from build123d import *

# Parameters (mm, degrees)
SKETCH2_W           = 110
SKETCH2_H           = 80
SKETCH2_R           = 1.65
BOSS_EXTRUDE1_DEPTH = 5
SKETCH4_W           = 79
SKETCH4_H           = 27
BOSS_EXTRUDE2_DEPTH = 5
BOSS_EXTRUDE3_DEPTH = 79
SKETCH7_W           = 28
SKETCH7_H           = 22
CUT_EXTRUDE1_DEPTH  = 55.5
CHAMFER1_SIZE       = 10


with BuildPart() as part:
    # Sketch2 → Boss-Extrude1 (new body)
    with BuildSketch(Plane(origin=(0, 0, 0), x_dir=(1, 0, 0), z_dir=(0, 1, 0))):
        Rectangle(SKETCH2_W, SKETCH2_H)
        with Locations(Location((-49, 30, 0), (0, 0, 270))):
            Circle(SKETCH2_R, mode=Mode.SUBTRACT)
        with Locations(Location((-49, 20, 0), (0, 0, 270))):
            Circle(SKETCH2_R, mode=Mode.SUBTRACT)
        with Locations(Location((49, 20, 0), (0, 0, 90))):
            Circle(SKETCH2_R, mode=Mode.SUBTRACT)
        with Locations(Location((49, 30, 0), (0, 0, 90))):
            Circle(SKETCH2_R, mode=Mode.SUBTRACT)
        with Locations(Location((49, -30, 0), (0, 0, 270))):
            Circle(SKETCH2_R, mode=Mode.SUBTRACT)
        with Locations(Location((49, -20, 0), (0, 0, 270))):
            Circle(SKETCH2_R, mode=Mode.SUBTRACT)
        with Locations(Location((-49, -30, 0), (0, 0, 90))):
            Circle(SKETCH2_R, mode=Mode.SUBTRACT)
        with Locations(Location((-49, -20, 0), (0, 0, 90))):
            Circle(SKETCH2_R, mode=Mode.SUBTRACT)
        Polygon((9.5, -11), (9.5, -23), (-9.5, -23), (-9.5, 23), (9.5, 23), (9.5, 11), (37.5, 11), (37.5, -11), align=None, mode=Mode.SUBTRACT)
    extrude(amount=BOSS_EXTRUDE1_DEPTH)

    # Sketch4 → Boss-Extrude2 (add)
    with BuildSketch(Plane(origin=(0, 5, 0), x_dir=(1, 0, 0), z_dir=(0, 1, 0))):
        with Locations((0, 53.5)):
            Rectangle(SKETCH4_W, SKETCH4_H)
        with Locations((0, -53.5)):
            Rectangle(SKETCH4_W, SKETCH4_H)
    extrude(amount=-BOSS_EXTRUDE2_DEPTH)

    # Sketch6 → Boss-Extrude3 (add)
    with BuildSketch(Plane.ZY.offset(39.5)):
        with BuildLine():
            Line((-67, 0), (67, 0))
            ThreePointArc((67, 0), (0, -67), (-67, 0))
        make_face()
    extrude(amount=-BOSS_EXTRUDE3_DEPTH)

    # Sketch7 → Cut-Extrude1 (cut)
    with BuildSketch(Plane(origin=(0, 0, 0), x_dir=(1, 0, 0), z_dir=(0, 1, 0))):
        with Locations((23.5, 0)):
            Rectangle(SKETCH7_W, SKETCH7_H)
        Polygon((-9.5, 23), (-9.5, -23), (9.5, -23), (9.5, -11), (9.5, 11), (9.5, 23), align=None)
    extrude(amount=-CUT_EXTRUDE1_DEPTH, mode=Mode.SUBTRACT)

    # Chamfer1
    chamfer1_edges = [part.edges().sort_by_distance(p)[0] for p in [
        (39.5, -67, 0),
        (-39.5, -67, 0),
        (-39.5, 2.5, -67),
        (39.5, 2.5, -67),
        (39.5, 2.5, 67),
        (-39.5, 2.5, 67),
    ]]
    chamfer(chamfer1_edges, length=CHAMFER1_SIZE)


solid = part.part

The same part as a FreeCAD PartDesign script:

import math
import FreeCAD as App
import Part
import Sketcher

V = App.Vector


def edges_at(feature, points):
    """Names of the edges that pass closest to the given points."""
    edges = feature.Shape.Edges
    near = lambda p: min(range(len(edges)), key=lambda i: edges[i].distToShape(Part.Vertex(*p))[0])
    return sorted({f"Edge{near(p) + 1}" for p in points})


def add_polygon(sketch, points):
    """Adds a closed chain of lines whose ends are joined by coincident constraints."""
    first, n = sketch.GeometryCount, len(points)
    for a, b in zip(points, points[1:] + points[:1]):
        sketch.addGeometry(Part.LineSegment(App.Vector(*a, 0), App.Vector(*b, 0)), False)
    for i in range(n):
        sketch.addConstraint(Sketcher.Constraint("Coincident", first + i, 2, first + (i + 1) % n, 1))

doc = App.newDocument("Part")
body = doc.addObject("PartDesign::Body", "Body")

# Sketch on XZ plane
sketch1 = body.newObject("Sketcher::SketchObject", "Sketch")
sketch1.AttachmentSupport = (doc.getObject("XZ_Plane"), [""])
sketch1.MapMode = "FlatFace"
add_polygon(sketch1, [(-55, -40), (-55, 40), (55, 40), (55, -40)])  # lines 0-3
sketch1.addGeometry(Part.Circle(V(-49, 30, 0), V(0, 0, 1), 1.6), False)  # 4
sketch1.addGeometry(Part.Circle(V(-49, 20, 0), V(0, 0, 1), 1.6), False)  # 5
sketch1.addGeometry(Part.Circle(V(49, 30, 0), V(0, 0, 1), 1.6), False)  # 6
sketch1.addGeometry(Part.Circle(V(49, 20, 0), V(0, 0, 1), 1.6), False)  # 7
sketch1.addGeometry(Part.Circle(V(-49, -20, 0), V(0, 0, 1), 1.6), False)  # 8
sketch1.addGeometry(Part.Circle(V(-49, -30, 0), V(0, 0, 1), 1.6), False)  # 9
add_polygon(sketch1, [(37.5, 11), (9.5, 11), (9.5, 23), (-9.5, 23), (-9.5, -23), (9.5, -23), (9.5, -11), (37.5, -11)])  # lines 10-17
sketch1.addGeometry(Part.Circle(V(49, -20, 0), V(0, 0, 1), 1.6), False)  # 18
sketch1.addGeometry(Part.Circle(V(49, -30, 0), V(0, 0, 1), 1.6), False)  # 19
sketch1.addConstraint([
    Sketcher.Constraint("Vertical", 0),
    Sketcher.Constraint("Horizontal", 1),
    Sketcher.Constraint("Vertical", 2),
    Sketcher.Constraint("Horizontal", 3),
    Sketcher.Constraint("Horizontal", 10),
    Sketcher.Constraint("Vertical", 11),
    Sketcher.Constraint("Horizontal", 12),
    Sketcher.Constraint("Vertical", 13),
    Sketcher.Constraint("Horizontal", 14),
    Sketcher.Constraint("Vertical", 15),
    Sketcher.Constraint("Horizontal", 16),
    Sketcher.Constraint("Vertical", 17),
    Sketcher.Constraint("Equal", 4, 5),
    Sketcher.Constraint("Equal", 5, 6),
    Sketcher.Constraint("Equal", 6, 7),
    Sketcher.Constraint("Equal", 7, 8),
    Sketcher.Constraint("Equal", 8, 9),
    Sketcher.Constraint("Equal", 9, 18),
    Sketcher.Constraint("Equal", 18, 19),
    Sketcher.Constraint("Symmetric", 7, 3, 8, 3, -1, 1),
    Sketcher.Constraint("Symmetric", 6, 3, 9, 3, -1, 1),
    Sketcher.Constraint("Symmetric", 5, 3, 18, 3, -1, 1),
    Sketcher.Constraint("Symmetric", 4, 3, 19, 3, -1, 1),
    Sketcher.Constraint("Symmetric", 0, 2, 2, 2, -1, 1),
    Sketcher.Constraint("Symmetric", 11, 2, 13, 2, -1, 1),
    Sketcher.Constraint("Symmetric", 4, 3, 6, 3, -2),
    Sketcher.Constraint("Symmetric", 5, 3, 7, 3, -2),
    Sketcher.Constraint("Symmetric", 10, 2, 15, 2, -1),
    Sketcher.Constraint("Vertical", 4, 3, 5, 3),
    Sketcher.Constraint("Diameter", 4, 3.3),
    Sketcher.Constraint("DistanceX", 1, 1, 1, 2, 110.0),
    Sketcher.Constraint("DistanceX", 10, 2, 10, 1, 28.0),
    Sketcher.Constraint("DistanceX", 12, 2, 12, 1, 19.0),
    Sketcher.Constraint("DistanceY", 0, 1, 0, 2, 80.0),
    Sketcher.Constraint("DistanceY", 11, 1, 11, 2, 12.0),
    Sketcher.Constraint("DistanceY", 13, 2, 13, 1, 46.0),
    Sketcher.Constraint("DistanceX", 4, 3, -1, 1, 49.0),
    Sketcher.Constraint("DistanceY", -1, 1, 4, 3, 30.0),
    Sketcher.Constraint("DistanceY", -1, 1, 5, 3, 20.0),
])
pad1 = body.newObject("PartDesign::Pad", "Pad")
pad1.Profile = sketch1
pad1.Length = 5
pad1.Reversed = True

# Sketch on XZ plane
sketch2 = body.newObject("Sketcher::SketchObject", "Sketch001")
sketch2.AttachmentSupport = (doc.getObject("XZ_Plane"), [""])
sketch2.MapMode = "FlatFace"
sketch2.AttachmentOffset = App.Placement(V(0, 0, -5), App.Rotation())
add_polygon(sketch2, [(-40, -67), (-40, -40), (40, -40), (40, -67)])  # lines 0-3
add_polygon(sketch2, [(-40, 40), (-40, 67), (40, 67), (40, 40)])  # lines 4-7
sketch2.addConstraint([
    Sketcher.Constraint("Vertical", 0),
    Sketcher.Constraint("Horizontal", 1),
    Sketcher.Constraint("Vertical", 2),
    Sketcher.Constraint("Horizontal", 3),
    Sketcher.Constraint("Vertical", 4),
    Sketcher.Constraint("Horizontal", 5),
    Sketcher.Constraint("Vertical", 6),
    Sketcher.Constraint("Horizontal", 7),
    Sketcher.Constraint("Symmetric", 2, 2, 4, 2, -1, 1),
    Sketcher.Constraint("Symmetric", 0, 2, 6, 2, -1, 1),
    Sketcher.Constraint("Vertical", 3, 2, 4, 2),
    Sketcher.Constraint("DistanceX", 1, 1, 1, 2, 79.0),
    Sketcher.Constraint("DistanceY", 0, 1, 0, 2, 27.0),
    Sketcher.Constraint("DistanceY", 0, 2, -1, 1, 40.0),
])
pad2 = body.newObject("PartDesign::Pad", "Pad001")
pad2.Profile = sketch2
pad2.Length = 5

# Sketch on YZ plane
sketch3 = body.newObject("Sketcher::SketchObject", "Sketch002")
sketch3.AttachmentSupport = (doc.getObject("YZ_Plane"), [""])
sketch3.MapMode = "FlatFace"
sketch3.AttachmentOffset = App.Placement(V(0, 0, -39.5), App.Rotation())
sketch3.addGeometry([
    Part.LineSegment(V(0, 67, 0), V(0, -67, 0)),
    Part.ArcOfCircle(Part.Circle(V(0, 0, 0), V(0, 0, 1), 67), math.radians(90), math.radians(270)),
], False)
sketch3.addConstraint([
    Sketcher.Constraint("Coincident", 0, 1, 1, 1),
    Sketcher.Constraint("Coincident", 1, 2, 0, 2),
    Sketcher.Constraint("Vertical", 0),
    Sketcher.Constraint("Coincident", 1, 3, -1, 1),
    Sketcher.Constraint("PointOnObject", 0, 1, -2),
    Sketcher.Constraint("Radius", 1, 67.0),
])
pad3 = body.newObject("PartDesign::Pad", "Pad002")
pad3.Profile = sketch3
pad3.Length = 79

# Sketch on XZ plane
sketch4 = body.newObject("Sketcher::SketchObject", "Sketch003")
sketch4.AttachmentSupport = (doc.getObject("XZ_Plane"), [""])
sketch4.MapMode = "FlatFace"
add_polygon(sketch4, [(10, 11), (38, 11), (38, -11), (10, -11), (10, -23), (-10, -23), (-10, 23), (10, 23)])  # lines 0-7
sketch4.addConstraint([
    Sketcher.Constraint("Horizontal", 0),
    Sketcher.Constraint("Vertical", 1),
    Sketcher.Constraint("Horizontal", 2),
    Sketcher.Constraint("Vertical", 3),
    Sketcher.Constraint("Horizontal", 4),
    Sketcher.Constraint("Vertical", 5),
    Sketcher.Constraint("Horizontal", 6),
    Sketcher.Constraint("Vertical", 7),
    Sketcher.Constraint("Symmetric", 3, 2, 5, 2, -1, 1),
    Sketcher.Constraint("Symmetric", 2, 2, 7, 2, -1),
    Sketcher.Constraint("DistanceX", 0, 1, 0, 2, 28.0),
    Sketcher.Constraint("DistanceX", 4, 2, 4, 1, 19.0),
    Sketcher.Constraint("DistanceY", 1, 2, 1, 1, 22.0),
    Sketcher.Constraint("DistanceY", 3, 2, 3, 1, 12.0),
])
pocket1 = body.newObject("PartDesign::Pocket", "Pocket")
pocket1.Profile = sketch4
pocket1.Length = 55.5
pocket1.Reversed = True
doc.recompute()

chamfer = body.newObject("PartDesign::Chamfer", "Chamfer")
chamfer.Base = (pocket1, edges_at(pocket1, [
    (39.5, -67, 0),
    (-39.5, -67, 0),
    (-39.5, 2.5, -67),
    (39.5, 2.5, -67),
    (39.5, 2.5, 67),
    (-39.5, 2.5, 67),
]))
chamfer.Size = 10

doc.recompute()
